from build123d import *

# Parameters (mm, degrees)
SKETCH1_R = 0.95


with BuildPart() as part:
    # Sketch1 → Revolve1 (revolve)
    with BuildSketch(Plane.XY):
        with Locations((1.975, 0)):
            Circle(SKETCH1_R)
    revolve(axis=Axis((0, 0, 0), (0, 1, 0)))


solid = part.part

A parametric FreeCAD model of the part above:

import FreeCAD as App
import Part
import Sketcher
from FreeCAD import Vector

doc = App.newDocument("Part")
params = doc.addObject("Spreadsheet::Sheet", "Params")
for row, (alias, value) in enumerate([
    ("sketch1_diameter", "1.9 mm"),
    ("revolution_angle", "360 deg"),
], start=1):
    params.set(f"A{row}", alias)
    params.set(f"B{row}", "=" + value)
    params.setAlias(f"B{row}", alias)

body = doc.addObject("PartDesign::Body", "Body")

# Sketch on XY plane
sketch1 = body.newObject("Sketcher::SketchObject", "Sketch")
sketch1.AttachmentSupport = (doc.getObject("XY_Plane"), [""])
sketch1.MapMode = "FlatFace"
sketch1.addGeometry(Part.Circle(Vector(2, 0, 0), Vector(0, 0, 1), 0.9), False)
sketch1.addConstraint([
    Sketcher.Constraint("PointOnObject", 0, 3, -1),
    Sketcher.Constraint("Diameter", 0, 1.9),
    Sketcher.Constraint("DistanceX", -1, 1, 0, 3, 1.975),
])
sketch1.setExpression("Constraints[1]", "Params.sketch1_diameter")
revolution = body.newObject("PartDesign::Revolution", "Revolution")
revolution.Profile = sketch1
revolution.ReferenceAxis = (sketch1, ["V_Axis"])
revolution.setExpression("Angle", "Params.revolution_angle")

doc.recompute()
